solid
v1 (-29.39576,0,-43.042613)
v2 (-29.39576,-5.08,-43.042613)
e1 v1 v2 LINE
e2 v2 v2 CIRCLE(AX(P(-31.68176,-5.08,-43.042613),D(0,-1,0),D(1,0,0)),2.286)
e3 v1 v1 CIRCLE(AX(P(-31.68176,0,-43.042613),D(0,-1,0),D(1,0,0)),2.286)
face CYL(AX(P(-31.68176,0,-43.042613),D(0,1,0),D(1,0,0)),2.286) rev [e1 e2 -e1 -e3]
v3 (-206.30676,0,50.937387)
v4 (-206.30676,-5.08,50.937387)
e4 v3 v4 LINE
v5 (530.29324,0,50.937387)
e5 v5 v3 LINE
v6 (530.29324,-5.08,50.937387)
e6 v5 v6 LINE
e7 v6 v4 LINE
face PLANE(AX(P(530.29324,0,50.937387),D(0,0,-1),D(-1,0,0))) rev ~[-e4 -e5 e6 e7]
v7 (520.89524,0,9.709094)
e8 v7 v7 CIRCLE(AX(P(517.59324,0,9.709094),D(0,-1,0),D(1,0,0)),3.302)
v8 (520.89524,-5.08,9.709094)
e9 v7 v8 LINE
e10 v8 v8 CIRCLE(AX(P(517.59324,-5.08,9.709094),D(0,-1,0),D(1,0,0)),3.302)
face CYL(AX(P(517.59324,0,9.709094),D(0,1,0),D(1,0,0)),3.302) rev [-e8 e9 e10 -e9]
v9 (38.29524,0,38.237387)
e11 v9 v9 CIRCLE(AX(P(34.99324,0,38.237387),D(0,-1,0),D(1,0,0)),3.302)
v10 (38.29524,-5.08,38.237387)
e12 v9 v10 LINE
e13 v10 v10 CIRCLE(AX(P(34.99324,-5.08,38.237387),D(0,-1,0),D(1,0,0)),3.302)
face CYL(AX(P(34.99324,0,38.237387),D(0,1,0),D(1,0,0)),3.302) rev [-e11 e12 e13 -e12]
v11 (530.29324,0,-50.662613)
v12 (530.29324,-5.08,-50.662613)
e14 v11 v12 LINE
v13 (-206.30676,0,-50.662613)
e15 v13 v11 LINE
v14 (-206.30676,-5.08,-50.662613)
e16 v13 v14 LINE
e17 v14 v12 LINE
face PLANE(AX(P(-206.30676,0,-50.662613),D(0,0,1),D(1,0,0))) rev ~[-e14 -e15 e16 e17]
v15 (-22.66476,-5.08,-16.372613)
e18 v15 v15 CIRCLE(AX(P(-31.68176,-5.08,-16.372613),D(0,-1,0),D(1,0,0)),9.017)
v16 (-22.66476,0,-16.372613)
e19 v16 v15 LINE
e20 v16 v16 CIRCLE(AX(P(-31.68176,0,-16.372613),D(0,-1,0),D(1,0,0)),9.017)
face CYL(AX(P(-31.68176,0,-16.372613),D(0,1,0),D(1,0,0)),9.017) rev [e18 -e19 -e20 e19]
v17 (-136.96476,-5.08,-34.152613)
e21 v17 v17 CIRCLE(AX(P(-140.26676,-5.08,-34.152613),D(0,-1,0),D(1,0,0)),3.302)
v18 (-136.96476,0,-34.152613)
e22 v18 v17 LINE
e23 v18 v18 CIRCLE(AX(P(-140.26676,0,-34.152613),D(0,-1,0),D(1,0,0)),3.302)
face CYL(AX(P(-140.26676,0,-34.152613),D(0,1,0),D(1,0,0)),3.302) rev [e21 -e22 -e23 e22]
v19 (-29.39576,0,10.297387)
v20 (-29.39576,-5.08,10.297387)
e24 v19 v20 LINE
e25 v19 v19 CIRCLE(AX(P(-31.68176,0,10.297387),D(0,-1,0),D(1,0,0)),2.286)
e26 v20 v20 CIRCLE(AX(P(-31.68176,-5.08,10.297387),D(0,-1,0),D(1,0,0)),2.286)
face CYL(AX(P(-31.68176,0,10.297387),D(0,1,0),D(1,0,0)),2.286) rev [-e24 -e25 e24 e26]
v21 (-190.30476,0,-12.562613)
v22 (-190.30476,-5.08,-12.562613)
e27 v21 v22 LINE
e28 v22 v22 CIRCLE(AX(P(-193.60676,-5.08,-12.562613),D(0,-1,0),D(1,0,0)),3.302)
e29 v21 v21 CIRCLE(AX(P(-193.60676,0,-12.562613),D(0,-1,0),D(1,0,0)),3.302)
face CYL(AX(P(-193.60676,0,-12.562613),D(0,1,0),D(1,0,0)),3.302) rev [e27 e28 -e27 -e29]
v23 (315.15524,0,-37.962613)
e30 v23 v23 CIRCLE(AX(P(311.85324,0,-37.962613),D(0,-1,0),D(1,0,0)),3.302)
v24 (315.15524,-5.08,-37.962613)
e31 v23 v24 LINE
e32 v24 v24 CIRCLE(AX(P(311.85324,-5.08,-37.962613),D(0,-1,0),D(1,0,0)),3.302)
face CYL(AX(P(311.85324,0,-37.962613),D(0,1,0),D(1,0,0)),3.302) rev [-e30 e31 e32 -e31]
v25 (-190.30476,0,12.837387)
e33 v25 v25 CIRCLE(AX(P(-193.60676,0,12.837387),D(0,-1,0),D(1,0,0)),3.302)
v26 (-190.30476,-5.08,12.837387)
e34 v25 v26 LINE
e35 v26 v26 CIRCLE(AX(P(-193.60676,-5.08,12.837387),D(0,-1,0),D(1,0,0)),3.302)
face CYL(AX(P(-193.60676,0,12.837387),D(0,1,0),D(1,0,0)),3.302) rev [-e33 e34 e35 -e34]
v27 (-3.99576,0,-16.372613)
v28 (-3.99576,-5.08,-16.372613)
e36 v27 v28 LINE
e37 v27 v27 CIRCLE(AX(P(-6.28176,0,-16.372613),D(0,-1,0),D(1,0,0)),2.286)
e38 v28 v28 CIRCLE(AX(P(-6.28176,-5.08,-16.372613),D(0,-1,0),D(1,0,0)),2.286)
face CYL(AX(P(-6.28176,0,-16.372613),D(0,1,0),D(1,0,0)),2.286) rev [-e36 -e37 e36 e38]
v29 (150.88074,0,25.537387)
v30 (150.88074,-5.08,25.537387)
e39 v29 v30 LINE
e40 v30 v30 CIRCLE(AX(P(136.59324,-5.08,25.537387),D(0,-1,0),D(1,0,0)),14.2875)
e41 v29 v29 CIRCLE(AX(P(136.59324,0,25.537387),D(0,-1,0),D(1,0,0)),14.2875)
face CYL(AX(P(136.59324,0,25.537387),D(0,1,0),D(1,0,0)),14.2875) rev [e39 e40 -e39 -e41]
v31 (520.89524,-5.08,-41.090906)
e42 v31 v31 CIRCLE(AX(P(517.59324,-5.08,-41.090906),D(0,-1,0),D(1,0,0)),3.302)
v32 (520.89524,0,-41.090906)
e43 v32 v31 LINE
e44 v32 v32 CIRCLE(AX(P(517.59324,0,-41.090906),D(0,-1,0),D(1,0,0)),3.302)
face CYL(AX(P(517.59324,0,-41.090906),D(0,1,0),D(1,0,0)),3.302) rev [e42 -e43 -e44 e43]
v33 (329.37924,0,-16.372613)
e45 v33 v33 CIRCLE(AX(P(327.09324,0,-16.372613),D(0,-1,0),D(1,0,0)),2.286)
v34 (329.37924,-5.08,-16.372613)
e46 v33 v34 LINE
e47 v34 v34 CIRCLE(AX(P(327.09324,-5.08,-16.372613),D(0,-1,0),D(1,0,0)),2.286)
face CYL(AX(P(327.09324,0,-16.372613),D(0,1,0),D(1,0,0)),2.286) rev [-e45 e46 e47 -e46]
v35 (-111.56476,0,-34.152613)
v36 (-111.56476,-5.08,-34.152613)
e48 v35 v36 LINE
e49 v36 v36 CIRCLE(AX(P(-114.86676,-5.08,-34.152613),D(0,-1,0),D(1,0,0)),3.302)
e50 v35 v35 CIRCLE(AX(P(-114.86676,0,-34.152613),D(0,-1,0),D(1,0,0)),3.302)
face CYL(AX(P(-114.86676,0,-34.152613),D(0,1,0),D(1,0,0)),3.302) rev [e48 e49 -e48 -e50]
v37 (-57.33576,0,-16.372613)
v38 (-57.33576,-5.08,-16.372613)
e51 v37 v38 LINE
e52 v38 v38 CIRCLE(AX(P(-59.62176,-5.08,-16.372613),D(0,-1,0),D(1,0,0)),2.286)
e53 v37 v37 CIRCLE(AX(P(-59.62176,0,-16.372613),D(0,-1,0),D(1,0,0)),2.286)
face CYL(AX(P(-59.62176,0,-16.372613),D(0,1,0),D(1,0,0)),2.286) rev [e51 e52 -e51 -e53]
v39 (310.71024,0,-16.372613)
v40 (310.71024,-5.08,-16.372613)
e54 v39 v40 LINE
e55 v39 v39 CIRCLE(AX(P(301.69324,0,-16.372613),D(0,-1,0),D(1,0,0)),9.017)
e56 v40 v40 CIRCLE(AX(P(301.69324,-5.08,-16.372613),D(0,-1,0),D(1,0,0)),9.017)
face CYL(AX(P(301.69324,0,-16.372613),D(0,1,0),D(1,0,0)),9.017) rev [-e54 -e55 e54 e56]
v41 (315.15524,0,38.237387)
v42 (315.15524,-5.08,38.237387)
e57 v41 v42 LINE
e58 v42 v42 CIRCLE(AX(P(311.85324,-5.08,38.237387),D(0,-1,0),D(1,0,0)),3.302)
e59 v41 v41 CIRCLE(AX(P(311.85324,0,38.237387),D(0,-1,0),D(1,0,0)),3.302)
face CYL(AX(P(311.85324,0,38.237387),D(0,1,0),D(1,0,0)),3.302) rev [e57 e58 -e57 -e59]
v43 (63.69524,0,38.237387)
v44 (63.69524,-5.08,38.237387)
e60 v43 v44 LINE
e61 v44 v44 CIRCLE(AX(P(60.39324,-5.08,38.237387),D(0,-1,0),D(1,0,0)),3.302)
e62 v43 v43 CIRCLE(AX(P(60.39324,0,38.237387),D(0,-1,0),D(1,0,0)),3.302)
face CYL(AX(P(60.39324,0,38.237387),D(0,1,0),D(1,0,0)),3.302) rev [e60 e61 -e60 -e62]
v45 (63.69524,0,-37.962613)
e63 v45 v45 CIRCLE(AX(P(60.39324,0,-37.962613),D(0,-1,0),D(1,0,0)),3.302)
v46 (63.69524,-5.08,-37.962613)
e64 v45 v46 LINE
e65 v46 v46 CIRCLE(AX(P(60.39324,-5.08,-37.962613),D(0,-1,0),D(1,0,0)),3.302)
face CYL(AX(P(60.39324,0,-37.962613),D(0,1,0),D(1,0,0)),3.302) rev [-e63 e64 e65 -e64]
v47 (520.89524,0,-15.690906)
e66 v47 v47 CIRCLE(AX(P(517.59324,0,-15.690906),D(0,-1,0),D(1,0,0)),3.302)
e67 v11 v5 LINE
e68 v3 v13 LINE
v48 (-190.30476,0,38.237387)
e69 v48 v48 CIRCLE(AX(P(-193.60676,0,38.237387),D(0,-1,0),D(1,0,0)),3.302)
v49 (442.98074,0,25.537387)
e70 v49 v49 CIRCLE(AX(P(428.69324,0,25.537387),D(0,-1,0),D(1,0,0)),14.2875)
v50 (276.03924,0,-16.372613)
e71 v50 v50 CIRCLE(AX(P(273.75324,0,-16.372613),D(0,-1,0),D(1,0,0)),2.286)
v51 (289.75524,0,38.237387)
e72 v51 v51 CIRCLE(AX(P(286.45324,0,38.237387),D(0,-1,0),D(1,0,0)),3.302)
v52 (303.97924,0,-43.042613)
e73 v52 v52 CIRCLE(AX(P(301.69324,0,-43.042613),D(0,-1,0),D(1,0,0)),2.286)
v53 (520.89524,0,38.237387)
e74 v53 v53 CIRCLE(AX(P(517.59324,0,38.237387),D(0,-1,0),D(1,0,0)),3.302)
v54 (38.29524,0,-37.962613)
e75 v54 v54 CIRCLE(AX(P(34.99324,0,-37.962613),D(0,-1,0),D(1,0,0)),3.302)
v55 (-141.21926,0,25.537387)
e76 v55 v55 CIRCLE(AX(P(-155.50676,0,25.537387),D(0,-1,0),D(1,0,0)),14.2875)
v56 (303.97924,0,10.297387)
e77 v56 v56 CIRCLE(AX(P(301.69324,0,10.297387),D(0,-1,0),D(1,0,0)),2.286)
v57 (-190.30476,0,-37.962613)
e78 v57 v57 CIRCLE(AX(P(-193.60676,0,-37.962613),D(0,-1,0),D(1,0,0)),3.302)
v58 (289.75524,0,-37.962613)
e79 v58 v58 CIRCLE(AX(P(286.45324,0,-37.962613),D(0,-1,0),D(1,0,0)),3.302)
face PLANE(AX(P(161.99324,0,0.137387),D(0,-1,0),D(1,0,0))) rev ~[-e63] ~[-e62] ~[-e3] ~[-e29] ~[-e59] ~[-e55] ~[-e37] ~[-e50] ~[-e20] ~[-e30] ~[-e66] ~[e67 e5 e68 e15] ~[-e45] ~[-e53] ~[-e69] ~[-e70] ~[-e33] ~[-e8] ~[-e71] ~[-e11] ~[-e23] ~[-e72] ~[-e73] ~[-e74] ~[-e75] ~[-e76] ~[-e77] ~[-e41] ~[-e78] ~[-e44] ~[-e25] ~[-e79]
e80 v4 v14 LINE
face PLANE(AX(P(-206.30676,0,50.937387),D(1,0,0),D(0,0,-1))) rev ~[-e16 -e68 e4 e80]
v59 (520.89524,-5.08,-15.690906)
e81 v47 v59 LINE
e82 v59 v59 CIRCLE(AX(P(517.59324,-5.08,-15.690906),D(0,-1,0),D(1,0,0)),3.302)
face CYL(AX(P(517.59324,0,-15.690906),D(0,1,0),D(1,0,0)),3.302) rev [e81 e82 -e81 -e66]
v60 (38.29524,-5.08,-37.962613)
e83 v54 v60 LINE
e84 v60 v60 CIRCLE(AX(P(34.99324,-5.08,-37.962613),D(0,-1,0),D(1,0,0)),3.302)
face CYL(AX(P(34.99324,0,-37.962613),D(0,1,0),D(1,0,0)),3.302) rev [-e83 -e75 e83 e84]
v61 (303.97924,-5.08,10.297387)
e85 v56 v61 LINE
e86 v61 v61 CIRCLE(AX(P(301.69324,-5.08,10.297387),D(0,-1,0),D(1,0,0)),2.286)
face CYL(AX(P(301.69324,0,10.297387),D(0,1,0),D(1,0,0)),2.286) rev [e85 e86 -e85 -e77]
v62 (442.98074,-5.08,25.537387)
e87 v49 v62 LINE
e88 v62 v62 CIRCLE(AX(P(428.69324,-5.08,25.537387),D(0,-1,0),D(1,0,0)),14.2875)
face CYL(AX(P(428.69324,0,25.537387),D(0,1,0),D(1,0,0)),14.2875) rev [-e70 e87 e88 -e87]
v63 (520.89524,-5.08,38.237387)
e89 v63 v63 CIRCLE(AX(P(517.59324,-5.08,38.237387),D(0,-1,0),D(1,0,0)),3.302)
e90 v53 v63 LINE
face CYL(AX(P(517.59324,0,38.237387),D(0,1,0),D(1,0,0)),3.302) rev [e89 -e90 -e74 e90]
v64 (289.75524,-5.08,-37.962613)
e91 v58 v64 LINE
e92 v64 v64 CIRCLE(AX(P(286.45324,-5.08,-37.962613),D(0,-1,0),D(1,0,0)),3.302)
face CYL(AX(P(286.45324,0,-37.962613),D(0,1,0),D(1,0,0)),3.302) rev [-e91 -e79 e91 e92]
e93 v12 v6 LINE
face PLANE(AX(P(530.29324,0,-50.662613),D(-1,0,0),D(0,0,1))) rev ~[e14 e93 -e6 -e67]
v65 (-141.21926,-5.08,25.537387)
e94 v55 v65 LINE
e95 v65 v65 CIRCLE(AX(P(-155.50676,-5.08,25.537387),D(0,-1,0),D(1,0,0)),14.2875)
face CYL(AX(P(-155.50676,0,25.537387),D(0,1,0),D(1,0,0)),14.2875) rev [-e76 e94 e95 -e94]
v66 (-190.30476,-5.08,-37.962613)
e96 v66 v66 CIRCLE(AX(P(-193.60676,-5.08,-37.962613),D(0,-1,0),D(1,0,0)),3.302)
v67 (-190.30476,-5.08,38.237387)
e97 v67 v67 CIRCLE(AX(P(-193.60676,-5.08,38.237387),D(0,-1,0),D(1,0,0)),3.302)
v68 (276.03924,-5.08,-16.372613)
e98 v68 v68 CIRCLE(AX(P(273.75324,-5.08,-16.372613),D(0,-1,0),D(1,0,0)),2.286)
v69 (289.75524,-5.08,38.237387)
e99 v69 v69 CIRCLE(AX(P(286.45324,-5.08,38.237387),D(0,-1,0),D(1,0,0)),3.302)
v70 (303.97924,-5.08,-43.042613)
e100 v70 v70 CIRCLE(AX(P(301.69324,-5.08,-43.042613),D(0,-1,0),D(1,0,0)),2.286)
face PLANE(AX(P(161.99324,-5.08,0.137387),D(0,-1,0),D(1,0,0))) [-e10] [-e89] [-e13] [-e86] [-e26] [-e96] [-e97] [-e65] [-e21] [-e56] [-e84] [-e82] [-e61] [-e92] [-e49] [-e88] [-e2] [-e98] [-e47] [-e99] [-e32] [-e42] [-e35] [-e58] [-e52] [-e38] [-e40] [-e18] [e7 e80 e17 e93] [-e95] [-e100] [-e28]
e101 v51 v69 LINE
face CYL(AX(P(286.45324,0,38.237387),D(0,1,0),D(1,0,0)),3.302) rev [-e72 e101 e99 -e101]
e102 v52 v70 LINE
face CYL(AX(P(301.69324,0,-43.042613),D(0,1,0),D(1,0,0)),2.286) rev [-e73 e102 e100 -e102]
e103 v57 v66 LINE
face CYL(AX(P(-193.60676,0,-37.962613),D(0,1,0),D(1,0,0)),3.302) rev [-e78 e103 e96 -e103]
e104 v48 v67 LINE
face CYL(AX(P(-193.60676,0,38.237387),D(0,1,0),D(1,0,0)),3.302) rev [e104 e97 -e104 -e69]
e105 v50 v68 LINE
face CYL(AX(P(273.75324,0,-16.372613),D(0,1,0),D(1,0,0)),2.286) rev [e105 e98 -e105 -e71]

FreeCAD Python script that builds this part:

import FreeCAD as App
import Part
import Sketcher
from FreeCAD import Vector
Q = App.Units.Quantity

doc = App.newDocument("Part")
params = doc.addObject("Spreadsheet::Sheet", "Params")
for row, (alias, value) in enumerate([
    ("sketch1_diameter", "0.26 in"),
    ("sketch1_diameter2", "0.18 in"),
    ("sketch1_diameter3", "0.71 in"),
    ("sketch1_width", "29 in"),
    ("sketch1_height", "4 in"),
    ("pad1_length", "0.2 in"),
], start=1):
    params.set(f"A{row}", alias)
    params.set(f"B{row}", "=" + value)
    params.setAlias(f"B{row}", alias)

body = doc.addObject("PartDesign::Body", "Body")

# Sketch on XZ plane
sketch1 = doc.addObject("Sketcher::SketchObject", "Sketch")
body.addObject(sketch1)
sketch1.AttachmentSupport = (doc.XZ_Plane, [""])
sketch1.MapMode = "FlatFace"
sketch1.addGeometry([
    Part.LineSegment(Vector(530.3, 50.9, 0), Vector(-206.3, 50.9, 0)),  # 0
    Part.LineSegment(Vector(-206.3, 50.9, 0), Vector(-206.3, -50.7, 0)),  # 1
    Part.LineSegment(Vector(-206.3, -50.7, 0), Vector(530.3, -50.7, 0)),  # 2
    Part.LineSegment(Vector(530.3, -50.7, 0), Vector(530.3, 50.9, 0)),  # 3
    Part.Circle(Vector(-193.6, -38, 0), Vector(0, 0, 1), 3.3),  # 4
    Part.Circle(Vector(-31.7, -43, 0), Vector(0, 0, 1), 2.3),  # 5
    Part.Circle(Vector(-140.3, -34.2, 0), Vector(0, 0, 1), 3.3),  # 6
    Part.Circle(Vector(-114.9, -34.2, 0), Vector(0, 0, 1), 3.3),  # 7
    Part.Circle(Vector(35, -38, 0), Vector(0, 0, 1), 3.3),  # 8
    Part.Circle(Vector(60.4, -38, 0), Vector(0, 0, 1), 3.3),  # 9
    Part.Circle(Vector(-59.6, -16.4, 0), Vector(0, 0, 1), 2.3),  # 10
    Part.Circle(Vector(-31.7, -16.4, 0), Vector(0, 0, 1), 9),  # 11
    Part.Circle(Vector(-193.6, -12.6, 0), Vector(0, 0, 1), 3.3),  # 12
    Part.Circle(Vector(-6.3, -16.4, 0), Vector(0, 0, 1), 2.3),  # 13
    Part.Circle(Vector(301.7, -43, 0), Vector(0, 0, 1), 2.3),  # 14
    Part.Circle(Vector(286.5, -38, 0), Vector(0, 0, 1), 3.3),  # 15
    Part.Circle(Vector(311.9, -38, 0), Vector(0, 0, 1), 3.3),  # 16
    Part.Circle(Vector(517.6, -41.1, 0), Vector(0, 0, 1), 3.3),  # 17
    Part.Circle(Vector(273.8, -16.4, 0), Vector(0, 0, 1), 2.3),  # 18
    Part.Circle(Vector(301.7, -16.4, 0), Vector(0, 0, 1), 9),  # 19
    Part.Circle(Vector(327.1, -16.4, 0), Vector(0, 0, 1), 2.3),  # 20
    Part.Circle(Vector(517.6, -15.7, 0), Vector(0, 0, 1), 3.3),  # 21
    Part.Circle(Vector(-193.6, 12.8, 0), Vector(0, 0, 1), 3.3),  # 22
    Part.Circle(Vector(-31.7, 10.3, 0), Vector(0, 0, 1), 2.3),  # 23
    Part.Circle(Vector(-155.5, 25.5, 0), Vector(0, 0, 1), 14.3),  # 24
    Part.Circle(Vector(-193.6, 38.2, 0), Vector(0, 0, 1), 3.3),  # 25
    Part.Circle(Vector(136.6, 25.5, 0), Vector(0, 0, 1), 14.3),  # 26
    Part.Circle(Vector(35, 38.2, 0), Vector(0, 0, 1), 3.3),  # 27
    Part.Circle(Vector(60.4, 38.2, 0), Vector(0, 0, 1), 3.3),  # 28
    Part.Circle(Vector(301.7, 10.3, 0), Vector(0, 0, 1), 2.3),  # 29
    Part.Circle(Vector(517.6, 9.7, 0), Vector(0, 0, 1), 3.3),  # 30
    Part.Circle(Vector(286.5, 38.2, 0), Vector(0, 0, 1), 3.3),  # 31
    Part.Circle(Vector(311.9, 38.2, 0), Vector(0, 0, 1), 3.3),  # 32
    Part.Circle(Vector(428.7, 25.5, 0), Vector(0, 0, 1), 14.3),  # 33
    Part.Circle(Vector(517.6, 38.2, 0), Vector(0, 0, 1), 3.3),  # 34
], False)
sketch1.addConstraint([
    Sketcher.Constraint("Coincident", 0, 2, 1, 1),
    Sketcher.Constraint("Coincident", 1, 2, 2, 1),
    Sketcher.Constraint("Coincident", 2, 2, 3, 1),
    Sketcher.Constraint("Coincident", 3, 2, 0, 1),
    Sketcher.Constraint("Horizontal", 0),
    Sketcher.Constraint("Vertical", 1),
    Sketcher.Constraint("Horizontal", 2),
    Sketcher.Constraint("Vertical", 3),
    Sketcher.Constraint("Equal", 4, 6),
    Sketcher.Constraint("Equal", 6, 7),
    Sketcher.Constraint("Equal", 7, 8),
    Sketcher.Constraint("Equal", 8, 9),
    Sketcher.Constraint("Equal", 5, 10),
    Sketcher.Constraint("Equal", 9, 12),
    Sketcher.Constraint("Equal", 10, 13),
    Sketcher.Constraint("Equal", 13, 14),
    Sketcher.Constraint("Equal", 12, 15),
    Sketcher.Constraint("Equal", 15, 16),
    Sketcher.Constraint("Equal", 16, 17),
    Sketcher.Constraint("Equal", 14, 18),
    Sketcher.Constraint("Equal", 11, 19),
    Sketcher.Constraint("Equal", 18, 20),
    Sketcher.Constraint("Equal", 17, 21),
    Sketcher.Constraint("Equal", 21, 22),
    Sketcher.Constraint("Equal", 20, 23),
    Sketcher.Constraint("Equal", 22, 25),
    Sketcher.Constraint("Equal", 24, 26),
    Sketcher.Constraint("Equal", 25, 27),
    Sketcher.Constraint("Equal", 27, 28),
    Sketcher.Constraint("Equal", 23, 29),
    Sketcher.Constraint("Equal", 28, 30),
    Sketcher.Constraint("Equal", 30, 31),
    Sketcher.Constraint("Equal", 31, 32),
    Sketcher.Constraint("Equal", 26, 33),
    Sketcher.Constraint("Equal", 32, 34),
    Sketcher.Constraint("Horizontal", 6, 3, 7, 3),
    Sketcher.Constraint("Horizontal", 4, 3, 8, 3),
    Sketcher.Constraint("Horizontal", 8, 3, 9, 3),
    Sketcher.Constraint("Horizontal", 10, 3, 11, 3),
    Sketcher.Constraint("Horizontal", 11, 3, 13, 3),
    Sketcher.Constraint("Horizontal", 5, 3, 14, 3),
    Sketcher.Constraint("Horizontal", 9, 3, 15, 3),
    Sketcher.Constraint("Horizontal", 15, 3, 16, 3),
    Sketcher.Constraint("Horizontal", 13, 3, 18, 3),
    Sketcher.Constraint("Horizontal", 18, 3, 19, 3),
    Sketcher.Constraint("Horizontal", 19, 3, 20, 3),
    Sketcher.Constraint("Horizontal", 24, 3, 26, 3),
    Sketcher.Constraint("Horizontal", 25, 3, 27, 3),
    Sketcher.Constraint("Horizontal", 27, 3, 28, 3),
    Sketcher.Constraint("Horizontal", 23, 3, 29, 3),
    Sketcher.Constraint("Horizontal", 28, 3, 31, 3),
    Sketcher.Constraint("Horizontal", 31, 3, 32, 3),
    Sketcher.Constraint("Horizontal", 26, 3, 33, 3),
    Sketcher.Constraint("Horizontal", 32, 3, 34, 3),
    Sketcher.Constraint("Vertical", 5, 3, 11, 3),
    Sketcher.Constraint("Vertical", 4, 3, 12, 3),
    Sketcher.Constraint("Vertical", 14, 3, 19, 3),
    Sketcher.Constraint("Vertical", 17, 3, 21, 3),
    Sketcher.Constraint("Vertical", 12, 3, 22, 3),
    Sketcher.Constraint("Vertical", 11, 3, 23, 3),
    Sketcher.Constraint("Vertical", 22, 3, 25, 3),
    Sketcher.Constraint("Vertical", 8, 3, 27, 3),
    Sketcher.Constraint("Vertical", 9, 3, 28, 3),
    Sketcher.Constraint("Vertical", 19, 3, 29, 3),
    Sketcher.Constraint("Vertical", 21, 3, 30, 3),
    Sketcher.Constraint("Vertical", 15, 3, 31, 3),
    Sketcher.Constraint("Vertical", 16, 3, 32, 3),
    Sketcher.Constraint("Vertical", 30, 3, 34, 3),
    Sketcher.Constraint("Diameter", 4, Q("0.26 in")),
    Sketcher.Constraint("Diameter", 5, Q("0.18 in")),
    Sketcher.Constraint("Diameter", 11, Q("0.71 in")),
    Sketcher.Constraint("DistanceX", 0, 2, 0, 1, Q("29 in")),
    Sketcher.Constraint("DistanceY", 1, 2, 1, 1, Q("4 in")),
    Sketcher.Constraint("Diameter", 24, Q("1.125 in")),
    Sketcher.Constraint("DistanceX", 6, 3, 7, 3, Q("1 in")),
    Sketcher.Constraint("DistanceX", 4, 3, 8, 3, Q("9 in")),
    Sketcher.Constraint("DistanceX", 8, 3, 9, 3, Q("1 in")),
    Sketcher.Constraint("DistanceY", 4, 3, 12, 3, Q("1 in")),
    Sketcher.Constraint("DistanceX", 11, 3, 13, 3, Q("1 in")),
    Sketcher.Constraint("DistanceX", 15, 3, 16, 3, Q("1 in")),
    Sketcher.Constraint("DistanceX", 9, 3, 17, 3, Q("18 in")),
    Sketcher.Constraint("DistanceX", 19, 3, 20, 3, Q("1 in")),
    Sketcher.Constraint("DistanceY", 17, 3, 21, 3, Q("1 in")),
    Sketcher.Constraint("DistanceY", 12, 3, 22, 3, Q("1 in")),
    Sketcher.Constraint("DistanceY", 22, 3, 25, 3, Q("1 in")),
    Sketcher.Constraint("DistanceX", 9, 3, 26, 3, Q("3 in")),
    Sketcher.Constraint("DistanceY", 21, 3, 30, 3, Q("1 in")),
    Sketcher.Constraint("DistanceX", 20, 3, 33, 3, Q("4 in")),
    Sketcher.Constraint("DistanceX", 0, 2, 24, 3, Q("2 in")),
    Sketcher.Constraint("DistanceY", 24, 3, 0, 2, Q("1 in")),
    Sketcher.Constraint("DistanceX", 33, 3, 2, 2, Q("4 in")),
    Sketcher.Constraint("DistanceY", 5, 3, 4, 3, Q("0.2 in")),
    Sketcher.Constraint("DistanceX", 4, 3, 6, 3, Q("2.1 in")),
    Sketcher.Constraint("DistanceX", 10, 3, 5, 3, Q("1.1 in")),
    Sketcher.Constraint("DistanceY", 7, 3, 10, 3, Q("0.7 in")),
    Sketcher.Constraint("DistanceX", 9, 3, 14, 3, Q("9.5 in")),
    Sketcher.Constraint("DistanceX", 15, 3, 14, 3, Q("0.6 in")),
    Sketcher.Constraint("DistanceX", 18, 3, 15, 3, Q("0.5 in")),
    Sketcher.Constraint("DistanceY", 5, 3, 23, 3, Q("2.1 in")),
    Sketcher.Constraint("DistanceY", 22, 3, 24, 3, Q("0.5 in")),
    Sketcher.Constraint("DistanceY", 4, 3, 6, 3, Q("0.15 in")),
    Sketcher.Constraint("DistanceX", 4, 3, 5, 3, Q("6.375 in")),
    Sketcher.Constraint("DistanceX", 4, 3, -1, 1, 193.60676),
    Sketcher.Constraint("DistanceY", 4, 3, -1, 1, 37.962613),
    Sketcher.Constraint("DistanceY", 17, 3, -1, 1, 41.090906),
])
sketch1.setExpression("Constraints[68]", "Params.sketch1_diameter")
sketch1.setExpression("Constraints[69]", "Params.sketch1_diameter2")
sketch1.setExpression("Constraints[70]", "Params.sketch1_diameter3")
sketch1.setExpression("Constraints[71]", "Params.sketch1_width")
sketch1.setExpression("Constraints[72]", "Params.sketch1_height")
pad1 = doc.addObject("PartDesign::Pad", "Pad")
body.addObject(pad1)
pad1.Profile = sketch1
pad1.setExpression("Length", "Params.pad1_length")

doc.recompute()
